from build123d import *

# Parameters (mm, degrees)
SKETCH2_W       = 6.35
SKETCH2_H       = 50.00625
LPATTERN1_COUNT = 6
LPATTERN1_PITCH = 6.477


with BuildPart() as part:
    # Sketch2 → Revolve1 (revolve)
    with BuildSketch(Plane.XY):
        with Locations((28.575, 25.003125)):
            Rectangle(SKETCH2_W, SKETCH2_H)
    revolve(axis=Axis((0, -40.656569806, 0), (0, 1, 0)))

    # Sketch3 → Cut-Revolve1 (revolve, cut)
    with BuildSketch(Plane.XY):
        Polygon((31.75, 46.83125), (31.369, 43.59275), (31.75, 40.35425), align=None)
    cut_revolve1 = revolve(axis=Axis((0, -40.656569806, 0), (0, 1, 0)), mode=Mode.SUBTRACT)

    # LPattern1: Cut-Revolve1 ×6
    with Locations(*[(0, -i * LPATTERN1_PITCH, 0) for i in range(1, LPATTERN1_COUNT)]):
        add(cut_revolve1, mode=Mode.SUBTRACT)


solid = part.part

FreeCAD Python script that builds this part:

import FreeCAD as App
import Part
import Sketcher
from FreeCAD import Vector
Q = App.Units.Quantity

doc = App.newDocument("Part")
body = doc.addObject("PartDesign::Body", "Body")

sketch1 = body.newObject("Sketcher::SketchObject", "Sketch")
sketch1.AttachmentSupport = (doc.getObject("XY_Plane"), [""])
sketch1.MapMode = "FlatFace"
sketch1.addGeometry([
    Part.LineSegment(Vector(25, 50, 0), Vector(25, 0, 0)),
    Part.LineSegment(Vector(25, 0, 0), Vector(32, 0, 0)),
    Part.LineSegment(Vector(32, 0, 0), Vector(32, 50, 0)),
    Part.LineSegment(Vector(32, 50, 0), Vector(25, 50, 0)),
], False)
sketch1.addConstraint([
    Sketcher.Constraint("Coincident", 0, 2, 1, 1),
    Sketcher.Constraint("Coincident", 1, 2, 2, 1),
    Sketcher.Constraint("Coincident", 2, 2, 3, 1),
    Sketcher.Constraint("Coincident", 3, 2, 0, 1),
    Sketcher.Constraint("Vertical", 0),
    Sketcher.Constraint("Horizontal", 1),
    Sketcher.Constraint("Vertical", 2),
    Sketcher.Constraint("Horizontal", 3),
    Sketcher.Constraint("PointOnObject", 0, 2, -1),
    Sketcher.Constraint("DistanceX", -1, 1, 0, 2, Q("1 in")),
    Sketcher.Constraint("DistanceX", 1, 1, 1, 2, Q("0.25 in")),
    Sketcher.Constraint("DistanceY", 0, 2, 0, 1, Q("1.96875 in")),
])
revolution = body.newObject("PartDesign::Revolution", "Revolution")
revolution.Profile = sketch1
revolution.ReferenceAxis = (sketch1, ["V_Axis"])
revolution.Angle = 360

sketch2 = body.newObject("Sketcher::SketchObject", "Sketch001")
sketch2.AttachmentSupport = (doc.getObject("XY_Plane"), [""])
sketch2.MapMode = "FlatFace"
sketch2.addGeometry([
    Part.LineSegment(Vector(31.8, 46.8, 0), Vector(31.4, 43.6, 0)),
    Part.LineSegment(Vector(31.4, 43.6, 0), Vector(31.8, 40.4, 0)),
    Part.LineSegment(Vector(31.8, 40.4, 0), Vector(31.8, 46.8, 0)),
], False)
sketch2.addConstraint([
    Sketcher.Constraint("Coincident", 0, 2, 1, 1),
    Sketcher.Constraint("Coincident", 1, 2, 2, 1),
    Sketcher.Constraint("Coincident", 2, 2, 0, 1),
    Sketcher.Constraint("Vertical", 2),
    Sketcher.Constraint("Equal", 0, 1),
    Sketcher.Constraint("DistanceY", 2, 1, 2, 2, Q("0.255 in")),
    Sketcher.Constraint("DistanceX", -1, 1, 1, 2, Q("1.25 in")),
    Sketcher.Constraint("DistanceX", -1, 1, 0, 2, Q("1.235 in")),
    Sketcher.Constraint("DistanceY", -1, 1, 2, 2, Q("1.84375 in")),
])
groove = body.newObject("PartDesign::Groove", "Groove")
groove.Profile = sketch2
groove.ReferenceAxis = (sketch2, ["V_Axis"])
groove.Angle = 360
doc.recompute()

linearpattern = body.newObject("PartDesign::LinearPattern", "LinearPattern")
linearpattern.Originals = [groove]
linearpattern.Direction = (doc.getObject("Y_Axis"), [""])
linearpattern.Mode = "offset"
linearpattern.Offset = Q("0.255 in")
linearpattern.Occurrences = 6
linearpattern.Reversed = True
body.Tip = linearpattern

doc.recompute()
